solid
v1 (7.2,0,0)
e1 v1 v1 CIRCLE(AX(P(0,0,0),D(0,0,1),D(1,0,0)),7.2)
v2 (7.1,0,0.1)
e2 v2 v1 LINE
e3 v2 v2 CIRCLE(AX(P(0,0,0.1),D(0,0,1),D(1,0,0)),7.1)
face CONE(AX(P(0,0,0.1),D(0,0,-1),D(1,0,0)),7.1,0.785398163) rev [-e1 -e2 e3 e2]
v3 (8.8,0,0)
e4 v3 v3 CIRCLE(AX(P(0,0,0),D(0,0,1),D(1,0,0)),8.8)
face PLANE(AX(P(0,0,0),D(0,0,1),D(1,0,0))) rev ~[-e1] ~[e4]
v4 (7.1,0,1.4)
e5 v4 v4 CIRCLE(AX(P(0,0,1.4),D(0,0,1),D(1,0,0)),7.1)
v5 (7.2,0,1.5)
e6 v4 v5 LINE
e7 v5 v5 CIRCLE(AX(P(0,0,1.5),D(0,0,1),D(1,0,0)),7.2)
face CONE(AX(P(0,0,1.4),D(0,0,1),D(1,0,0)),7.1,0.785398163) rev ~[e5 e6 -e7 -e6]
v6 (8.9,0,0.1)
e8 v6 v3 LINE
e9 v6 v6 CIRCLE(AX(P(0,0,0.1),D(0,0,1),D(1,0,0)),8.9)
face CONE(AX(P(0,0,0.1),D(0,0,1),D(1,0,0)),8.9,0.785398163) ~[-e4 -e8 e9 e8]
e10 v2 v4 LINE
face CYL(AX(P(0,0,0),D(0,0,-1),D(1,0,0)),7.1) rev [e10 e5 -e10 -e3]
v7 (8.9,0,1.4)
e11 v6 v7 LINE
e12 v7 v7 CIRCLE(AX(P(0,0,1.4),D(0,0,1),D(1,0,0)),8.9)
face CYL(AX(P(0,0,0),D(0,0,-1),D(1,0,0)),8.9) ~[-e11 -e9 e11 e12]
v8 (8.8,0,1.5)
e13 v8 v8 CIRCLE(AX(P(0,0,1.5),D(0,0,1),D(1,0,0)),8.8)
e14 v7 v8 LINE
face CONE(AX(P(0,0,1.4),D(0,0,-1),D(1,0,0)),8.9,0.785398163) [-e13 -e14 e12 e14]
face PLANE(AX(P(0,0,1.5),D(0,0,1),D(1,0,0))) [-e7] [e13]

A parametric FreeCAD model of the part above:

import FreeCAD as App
import Part
import Sketcher
from FreeCAD import Vector
Q = App.Units.Quantity


def edges_at(feature, points):
    """Names of the edges that pass closest to the given points."""
    edges = feature.Shape.Edges
    near = lambda p: min(range(len(edges)), key=lambda i: edges[i].distToShape(Part.Vertex(*p))[0])
    return sorted({f"Edge{near(p) + 1}" for p in points})

doc = App.newDocument("Part")
body = doc.addObject("PartDesign::Body", "Body")

# Sketch on XY plane
sketch1 = doc.addObject("Sketcher::SketchObject", "Sketch")
body.addObject(sketch1)
sketch1.AttachmentSupport = (doc.XY_Plane, [""])
sketch1.MapMode = "FlatFace"
sketch1.addGeometry(Part.Circle(Vector(0, 0, 0), Vector(0, 0, 1), 9), False)
sketch1.addGeometry(Part.Circle(Vector(0, 0, 0), Vector(0, 0, 1), 7), False)
sketch1.addConstraint(Sketcher.Constraint("Coincident", 0, 3, -1, 1))
sketch1.addConstraint(Sketcher.Constraint("Coincident", 1, 3, -1, 1))
sketch1.addConstraint(Sketcher.Constraint("Diameter", 0, Q("17.8 mm")))
sketch1.addConstraint(Sketcher.Constraint("Diameter", 1, Q("14.2 mm")))
pad1 = doc.addObject("PartDesign::Pad", "Pad")
body.addObject(pad1)
pad1.Profile = sketch1
pad1.Length = 1.5
doc.recompute()

chamfer = doc.addObject("PartDesign::Chamfer", "Chamfer")
body.addObject(chamfer)
chamfer.Base = (pad1, edges_at(pad1, [
    (-8.9, 0, 1.5),
    (-8.9, 0, 0),
    (-7.1, 0, 1.5),
    (-7.1, 0, 0),
]))
chamfer.Size = 0.1

doc.recompute()
